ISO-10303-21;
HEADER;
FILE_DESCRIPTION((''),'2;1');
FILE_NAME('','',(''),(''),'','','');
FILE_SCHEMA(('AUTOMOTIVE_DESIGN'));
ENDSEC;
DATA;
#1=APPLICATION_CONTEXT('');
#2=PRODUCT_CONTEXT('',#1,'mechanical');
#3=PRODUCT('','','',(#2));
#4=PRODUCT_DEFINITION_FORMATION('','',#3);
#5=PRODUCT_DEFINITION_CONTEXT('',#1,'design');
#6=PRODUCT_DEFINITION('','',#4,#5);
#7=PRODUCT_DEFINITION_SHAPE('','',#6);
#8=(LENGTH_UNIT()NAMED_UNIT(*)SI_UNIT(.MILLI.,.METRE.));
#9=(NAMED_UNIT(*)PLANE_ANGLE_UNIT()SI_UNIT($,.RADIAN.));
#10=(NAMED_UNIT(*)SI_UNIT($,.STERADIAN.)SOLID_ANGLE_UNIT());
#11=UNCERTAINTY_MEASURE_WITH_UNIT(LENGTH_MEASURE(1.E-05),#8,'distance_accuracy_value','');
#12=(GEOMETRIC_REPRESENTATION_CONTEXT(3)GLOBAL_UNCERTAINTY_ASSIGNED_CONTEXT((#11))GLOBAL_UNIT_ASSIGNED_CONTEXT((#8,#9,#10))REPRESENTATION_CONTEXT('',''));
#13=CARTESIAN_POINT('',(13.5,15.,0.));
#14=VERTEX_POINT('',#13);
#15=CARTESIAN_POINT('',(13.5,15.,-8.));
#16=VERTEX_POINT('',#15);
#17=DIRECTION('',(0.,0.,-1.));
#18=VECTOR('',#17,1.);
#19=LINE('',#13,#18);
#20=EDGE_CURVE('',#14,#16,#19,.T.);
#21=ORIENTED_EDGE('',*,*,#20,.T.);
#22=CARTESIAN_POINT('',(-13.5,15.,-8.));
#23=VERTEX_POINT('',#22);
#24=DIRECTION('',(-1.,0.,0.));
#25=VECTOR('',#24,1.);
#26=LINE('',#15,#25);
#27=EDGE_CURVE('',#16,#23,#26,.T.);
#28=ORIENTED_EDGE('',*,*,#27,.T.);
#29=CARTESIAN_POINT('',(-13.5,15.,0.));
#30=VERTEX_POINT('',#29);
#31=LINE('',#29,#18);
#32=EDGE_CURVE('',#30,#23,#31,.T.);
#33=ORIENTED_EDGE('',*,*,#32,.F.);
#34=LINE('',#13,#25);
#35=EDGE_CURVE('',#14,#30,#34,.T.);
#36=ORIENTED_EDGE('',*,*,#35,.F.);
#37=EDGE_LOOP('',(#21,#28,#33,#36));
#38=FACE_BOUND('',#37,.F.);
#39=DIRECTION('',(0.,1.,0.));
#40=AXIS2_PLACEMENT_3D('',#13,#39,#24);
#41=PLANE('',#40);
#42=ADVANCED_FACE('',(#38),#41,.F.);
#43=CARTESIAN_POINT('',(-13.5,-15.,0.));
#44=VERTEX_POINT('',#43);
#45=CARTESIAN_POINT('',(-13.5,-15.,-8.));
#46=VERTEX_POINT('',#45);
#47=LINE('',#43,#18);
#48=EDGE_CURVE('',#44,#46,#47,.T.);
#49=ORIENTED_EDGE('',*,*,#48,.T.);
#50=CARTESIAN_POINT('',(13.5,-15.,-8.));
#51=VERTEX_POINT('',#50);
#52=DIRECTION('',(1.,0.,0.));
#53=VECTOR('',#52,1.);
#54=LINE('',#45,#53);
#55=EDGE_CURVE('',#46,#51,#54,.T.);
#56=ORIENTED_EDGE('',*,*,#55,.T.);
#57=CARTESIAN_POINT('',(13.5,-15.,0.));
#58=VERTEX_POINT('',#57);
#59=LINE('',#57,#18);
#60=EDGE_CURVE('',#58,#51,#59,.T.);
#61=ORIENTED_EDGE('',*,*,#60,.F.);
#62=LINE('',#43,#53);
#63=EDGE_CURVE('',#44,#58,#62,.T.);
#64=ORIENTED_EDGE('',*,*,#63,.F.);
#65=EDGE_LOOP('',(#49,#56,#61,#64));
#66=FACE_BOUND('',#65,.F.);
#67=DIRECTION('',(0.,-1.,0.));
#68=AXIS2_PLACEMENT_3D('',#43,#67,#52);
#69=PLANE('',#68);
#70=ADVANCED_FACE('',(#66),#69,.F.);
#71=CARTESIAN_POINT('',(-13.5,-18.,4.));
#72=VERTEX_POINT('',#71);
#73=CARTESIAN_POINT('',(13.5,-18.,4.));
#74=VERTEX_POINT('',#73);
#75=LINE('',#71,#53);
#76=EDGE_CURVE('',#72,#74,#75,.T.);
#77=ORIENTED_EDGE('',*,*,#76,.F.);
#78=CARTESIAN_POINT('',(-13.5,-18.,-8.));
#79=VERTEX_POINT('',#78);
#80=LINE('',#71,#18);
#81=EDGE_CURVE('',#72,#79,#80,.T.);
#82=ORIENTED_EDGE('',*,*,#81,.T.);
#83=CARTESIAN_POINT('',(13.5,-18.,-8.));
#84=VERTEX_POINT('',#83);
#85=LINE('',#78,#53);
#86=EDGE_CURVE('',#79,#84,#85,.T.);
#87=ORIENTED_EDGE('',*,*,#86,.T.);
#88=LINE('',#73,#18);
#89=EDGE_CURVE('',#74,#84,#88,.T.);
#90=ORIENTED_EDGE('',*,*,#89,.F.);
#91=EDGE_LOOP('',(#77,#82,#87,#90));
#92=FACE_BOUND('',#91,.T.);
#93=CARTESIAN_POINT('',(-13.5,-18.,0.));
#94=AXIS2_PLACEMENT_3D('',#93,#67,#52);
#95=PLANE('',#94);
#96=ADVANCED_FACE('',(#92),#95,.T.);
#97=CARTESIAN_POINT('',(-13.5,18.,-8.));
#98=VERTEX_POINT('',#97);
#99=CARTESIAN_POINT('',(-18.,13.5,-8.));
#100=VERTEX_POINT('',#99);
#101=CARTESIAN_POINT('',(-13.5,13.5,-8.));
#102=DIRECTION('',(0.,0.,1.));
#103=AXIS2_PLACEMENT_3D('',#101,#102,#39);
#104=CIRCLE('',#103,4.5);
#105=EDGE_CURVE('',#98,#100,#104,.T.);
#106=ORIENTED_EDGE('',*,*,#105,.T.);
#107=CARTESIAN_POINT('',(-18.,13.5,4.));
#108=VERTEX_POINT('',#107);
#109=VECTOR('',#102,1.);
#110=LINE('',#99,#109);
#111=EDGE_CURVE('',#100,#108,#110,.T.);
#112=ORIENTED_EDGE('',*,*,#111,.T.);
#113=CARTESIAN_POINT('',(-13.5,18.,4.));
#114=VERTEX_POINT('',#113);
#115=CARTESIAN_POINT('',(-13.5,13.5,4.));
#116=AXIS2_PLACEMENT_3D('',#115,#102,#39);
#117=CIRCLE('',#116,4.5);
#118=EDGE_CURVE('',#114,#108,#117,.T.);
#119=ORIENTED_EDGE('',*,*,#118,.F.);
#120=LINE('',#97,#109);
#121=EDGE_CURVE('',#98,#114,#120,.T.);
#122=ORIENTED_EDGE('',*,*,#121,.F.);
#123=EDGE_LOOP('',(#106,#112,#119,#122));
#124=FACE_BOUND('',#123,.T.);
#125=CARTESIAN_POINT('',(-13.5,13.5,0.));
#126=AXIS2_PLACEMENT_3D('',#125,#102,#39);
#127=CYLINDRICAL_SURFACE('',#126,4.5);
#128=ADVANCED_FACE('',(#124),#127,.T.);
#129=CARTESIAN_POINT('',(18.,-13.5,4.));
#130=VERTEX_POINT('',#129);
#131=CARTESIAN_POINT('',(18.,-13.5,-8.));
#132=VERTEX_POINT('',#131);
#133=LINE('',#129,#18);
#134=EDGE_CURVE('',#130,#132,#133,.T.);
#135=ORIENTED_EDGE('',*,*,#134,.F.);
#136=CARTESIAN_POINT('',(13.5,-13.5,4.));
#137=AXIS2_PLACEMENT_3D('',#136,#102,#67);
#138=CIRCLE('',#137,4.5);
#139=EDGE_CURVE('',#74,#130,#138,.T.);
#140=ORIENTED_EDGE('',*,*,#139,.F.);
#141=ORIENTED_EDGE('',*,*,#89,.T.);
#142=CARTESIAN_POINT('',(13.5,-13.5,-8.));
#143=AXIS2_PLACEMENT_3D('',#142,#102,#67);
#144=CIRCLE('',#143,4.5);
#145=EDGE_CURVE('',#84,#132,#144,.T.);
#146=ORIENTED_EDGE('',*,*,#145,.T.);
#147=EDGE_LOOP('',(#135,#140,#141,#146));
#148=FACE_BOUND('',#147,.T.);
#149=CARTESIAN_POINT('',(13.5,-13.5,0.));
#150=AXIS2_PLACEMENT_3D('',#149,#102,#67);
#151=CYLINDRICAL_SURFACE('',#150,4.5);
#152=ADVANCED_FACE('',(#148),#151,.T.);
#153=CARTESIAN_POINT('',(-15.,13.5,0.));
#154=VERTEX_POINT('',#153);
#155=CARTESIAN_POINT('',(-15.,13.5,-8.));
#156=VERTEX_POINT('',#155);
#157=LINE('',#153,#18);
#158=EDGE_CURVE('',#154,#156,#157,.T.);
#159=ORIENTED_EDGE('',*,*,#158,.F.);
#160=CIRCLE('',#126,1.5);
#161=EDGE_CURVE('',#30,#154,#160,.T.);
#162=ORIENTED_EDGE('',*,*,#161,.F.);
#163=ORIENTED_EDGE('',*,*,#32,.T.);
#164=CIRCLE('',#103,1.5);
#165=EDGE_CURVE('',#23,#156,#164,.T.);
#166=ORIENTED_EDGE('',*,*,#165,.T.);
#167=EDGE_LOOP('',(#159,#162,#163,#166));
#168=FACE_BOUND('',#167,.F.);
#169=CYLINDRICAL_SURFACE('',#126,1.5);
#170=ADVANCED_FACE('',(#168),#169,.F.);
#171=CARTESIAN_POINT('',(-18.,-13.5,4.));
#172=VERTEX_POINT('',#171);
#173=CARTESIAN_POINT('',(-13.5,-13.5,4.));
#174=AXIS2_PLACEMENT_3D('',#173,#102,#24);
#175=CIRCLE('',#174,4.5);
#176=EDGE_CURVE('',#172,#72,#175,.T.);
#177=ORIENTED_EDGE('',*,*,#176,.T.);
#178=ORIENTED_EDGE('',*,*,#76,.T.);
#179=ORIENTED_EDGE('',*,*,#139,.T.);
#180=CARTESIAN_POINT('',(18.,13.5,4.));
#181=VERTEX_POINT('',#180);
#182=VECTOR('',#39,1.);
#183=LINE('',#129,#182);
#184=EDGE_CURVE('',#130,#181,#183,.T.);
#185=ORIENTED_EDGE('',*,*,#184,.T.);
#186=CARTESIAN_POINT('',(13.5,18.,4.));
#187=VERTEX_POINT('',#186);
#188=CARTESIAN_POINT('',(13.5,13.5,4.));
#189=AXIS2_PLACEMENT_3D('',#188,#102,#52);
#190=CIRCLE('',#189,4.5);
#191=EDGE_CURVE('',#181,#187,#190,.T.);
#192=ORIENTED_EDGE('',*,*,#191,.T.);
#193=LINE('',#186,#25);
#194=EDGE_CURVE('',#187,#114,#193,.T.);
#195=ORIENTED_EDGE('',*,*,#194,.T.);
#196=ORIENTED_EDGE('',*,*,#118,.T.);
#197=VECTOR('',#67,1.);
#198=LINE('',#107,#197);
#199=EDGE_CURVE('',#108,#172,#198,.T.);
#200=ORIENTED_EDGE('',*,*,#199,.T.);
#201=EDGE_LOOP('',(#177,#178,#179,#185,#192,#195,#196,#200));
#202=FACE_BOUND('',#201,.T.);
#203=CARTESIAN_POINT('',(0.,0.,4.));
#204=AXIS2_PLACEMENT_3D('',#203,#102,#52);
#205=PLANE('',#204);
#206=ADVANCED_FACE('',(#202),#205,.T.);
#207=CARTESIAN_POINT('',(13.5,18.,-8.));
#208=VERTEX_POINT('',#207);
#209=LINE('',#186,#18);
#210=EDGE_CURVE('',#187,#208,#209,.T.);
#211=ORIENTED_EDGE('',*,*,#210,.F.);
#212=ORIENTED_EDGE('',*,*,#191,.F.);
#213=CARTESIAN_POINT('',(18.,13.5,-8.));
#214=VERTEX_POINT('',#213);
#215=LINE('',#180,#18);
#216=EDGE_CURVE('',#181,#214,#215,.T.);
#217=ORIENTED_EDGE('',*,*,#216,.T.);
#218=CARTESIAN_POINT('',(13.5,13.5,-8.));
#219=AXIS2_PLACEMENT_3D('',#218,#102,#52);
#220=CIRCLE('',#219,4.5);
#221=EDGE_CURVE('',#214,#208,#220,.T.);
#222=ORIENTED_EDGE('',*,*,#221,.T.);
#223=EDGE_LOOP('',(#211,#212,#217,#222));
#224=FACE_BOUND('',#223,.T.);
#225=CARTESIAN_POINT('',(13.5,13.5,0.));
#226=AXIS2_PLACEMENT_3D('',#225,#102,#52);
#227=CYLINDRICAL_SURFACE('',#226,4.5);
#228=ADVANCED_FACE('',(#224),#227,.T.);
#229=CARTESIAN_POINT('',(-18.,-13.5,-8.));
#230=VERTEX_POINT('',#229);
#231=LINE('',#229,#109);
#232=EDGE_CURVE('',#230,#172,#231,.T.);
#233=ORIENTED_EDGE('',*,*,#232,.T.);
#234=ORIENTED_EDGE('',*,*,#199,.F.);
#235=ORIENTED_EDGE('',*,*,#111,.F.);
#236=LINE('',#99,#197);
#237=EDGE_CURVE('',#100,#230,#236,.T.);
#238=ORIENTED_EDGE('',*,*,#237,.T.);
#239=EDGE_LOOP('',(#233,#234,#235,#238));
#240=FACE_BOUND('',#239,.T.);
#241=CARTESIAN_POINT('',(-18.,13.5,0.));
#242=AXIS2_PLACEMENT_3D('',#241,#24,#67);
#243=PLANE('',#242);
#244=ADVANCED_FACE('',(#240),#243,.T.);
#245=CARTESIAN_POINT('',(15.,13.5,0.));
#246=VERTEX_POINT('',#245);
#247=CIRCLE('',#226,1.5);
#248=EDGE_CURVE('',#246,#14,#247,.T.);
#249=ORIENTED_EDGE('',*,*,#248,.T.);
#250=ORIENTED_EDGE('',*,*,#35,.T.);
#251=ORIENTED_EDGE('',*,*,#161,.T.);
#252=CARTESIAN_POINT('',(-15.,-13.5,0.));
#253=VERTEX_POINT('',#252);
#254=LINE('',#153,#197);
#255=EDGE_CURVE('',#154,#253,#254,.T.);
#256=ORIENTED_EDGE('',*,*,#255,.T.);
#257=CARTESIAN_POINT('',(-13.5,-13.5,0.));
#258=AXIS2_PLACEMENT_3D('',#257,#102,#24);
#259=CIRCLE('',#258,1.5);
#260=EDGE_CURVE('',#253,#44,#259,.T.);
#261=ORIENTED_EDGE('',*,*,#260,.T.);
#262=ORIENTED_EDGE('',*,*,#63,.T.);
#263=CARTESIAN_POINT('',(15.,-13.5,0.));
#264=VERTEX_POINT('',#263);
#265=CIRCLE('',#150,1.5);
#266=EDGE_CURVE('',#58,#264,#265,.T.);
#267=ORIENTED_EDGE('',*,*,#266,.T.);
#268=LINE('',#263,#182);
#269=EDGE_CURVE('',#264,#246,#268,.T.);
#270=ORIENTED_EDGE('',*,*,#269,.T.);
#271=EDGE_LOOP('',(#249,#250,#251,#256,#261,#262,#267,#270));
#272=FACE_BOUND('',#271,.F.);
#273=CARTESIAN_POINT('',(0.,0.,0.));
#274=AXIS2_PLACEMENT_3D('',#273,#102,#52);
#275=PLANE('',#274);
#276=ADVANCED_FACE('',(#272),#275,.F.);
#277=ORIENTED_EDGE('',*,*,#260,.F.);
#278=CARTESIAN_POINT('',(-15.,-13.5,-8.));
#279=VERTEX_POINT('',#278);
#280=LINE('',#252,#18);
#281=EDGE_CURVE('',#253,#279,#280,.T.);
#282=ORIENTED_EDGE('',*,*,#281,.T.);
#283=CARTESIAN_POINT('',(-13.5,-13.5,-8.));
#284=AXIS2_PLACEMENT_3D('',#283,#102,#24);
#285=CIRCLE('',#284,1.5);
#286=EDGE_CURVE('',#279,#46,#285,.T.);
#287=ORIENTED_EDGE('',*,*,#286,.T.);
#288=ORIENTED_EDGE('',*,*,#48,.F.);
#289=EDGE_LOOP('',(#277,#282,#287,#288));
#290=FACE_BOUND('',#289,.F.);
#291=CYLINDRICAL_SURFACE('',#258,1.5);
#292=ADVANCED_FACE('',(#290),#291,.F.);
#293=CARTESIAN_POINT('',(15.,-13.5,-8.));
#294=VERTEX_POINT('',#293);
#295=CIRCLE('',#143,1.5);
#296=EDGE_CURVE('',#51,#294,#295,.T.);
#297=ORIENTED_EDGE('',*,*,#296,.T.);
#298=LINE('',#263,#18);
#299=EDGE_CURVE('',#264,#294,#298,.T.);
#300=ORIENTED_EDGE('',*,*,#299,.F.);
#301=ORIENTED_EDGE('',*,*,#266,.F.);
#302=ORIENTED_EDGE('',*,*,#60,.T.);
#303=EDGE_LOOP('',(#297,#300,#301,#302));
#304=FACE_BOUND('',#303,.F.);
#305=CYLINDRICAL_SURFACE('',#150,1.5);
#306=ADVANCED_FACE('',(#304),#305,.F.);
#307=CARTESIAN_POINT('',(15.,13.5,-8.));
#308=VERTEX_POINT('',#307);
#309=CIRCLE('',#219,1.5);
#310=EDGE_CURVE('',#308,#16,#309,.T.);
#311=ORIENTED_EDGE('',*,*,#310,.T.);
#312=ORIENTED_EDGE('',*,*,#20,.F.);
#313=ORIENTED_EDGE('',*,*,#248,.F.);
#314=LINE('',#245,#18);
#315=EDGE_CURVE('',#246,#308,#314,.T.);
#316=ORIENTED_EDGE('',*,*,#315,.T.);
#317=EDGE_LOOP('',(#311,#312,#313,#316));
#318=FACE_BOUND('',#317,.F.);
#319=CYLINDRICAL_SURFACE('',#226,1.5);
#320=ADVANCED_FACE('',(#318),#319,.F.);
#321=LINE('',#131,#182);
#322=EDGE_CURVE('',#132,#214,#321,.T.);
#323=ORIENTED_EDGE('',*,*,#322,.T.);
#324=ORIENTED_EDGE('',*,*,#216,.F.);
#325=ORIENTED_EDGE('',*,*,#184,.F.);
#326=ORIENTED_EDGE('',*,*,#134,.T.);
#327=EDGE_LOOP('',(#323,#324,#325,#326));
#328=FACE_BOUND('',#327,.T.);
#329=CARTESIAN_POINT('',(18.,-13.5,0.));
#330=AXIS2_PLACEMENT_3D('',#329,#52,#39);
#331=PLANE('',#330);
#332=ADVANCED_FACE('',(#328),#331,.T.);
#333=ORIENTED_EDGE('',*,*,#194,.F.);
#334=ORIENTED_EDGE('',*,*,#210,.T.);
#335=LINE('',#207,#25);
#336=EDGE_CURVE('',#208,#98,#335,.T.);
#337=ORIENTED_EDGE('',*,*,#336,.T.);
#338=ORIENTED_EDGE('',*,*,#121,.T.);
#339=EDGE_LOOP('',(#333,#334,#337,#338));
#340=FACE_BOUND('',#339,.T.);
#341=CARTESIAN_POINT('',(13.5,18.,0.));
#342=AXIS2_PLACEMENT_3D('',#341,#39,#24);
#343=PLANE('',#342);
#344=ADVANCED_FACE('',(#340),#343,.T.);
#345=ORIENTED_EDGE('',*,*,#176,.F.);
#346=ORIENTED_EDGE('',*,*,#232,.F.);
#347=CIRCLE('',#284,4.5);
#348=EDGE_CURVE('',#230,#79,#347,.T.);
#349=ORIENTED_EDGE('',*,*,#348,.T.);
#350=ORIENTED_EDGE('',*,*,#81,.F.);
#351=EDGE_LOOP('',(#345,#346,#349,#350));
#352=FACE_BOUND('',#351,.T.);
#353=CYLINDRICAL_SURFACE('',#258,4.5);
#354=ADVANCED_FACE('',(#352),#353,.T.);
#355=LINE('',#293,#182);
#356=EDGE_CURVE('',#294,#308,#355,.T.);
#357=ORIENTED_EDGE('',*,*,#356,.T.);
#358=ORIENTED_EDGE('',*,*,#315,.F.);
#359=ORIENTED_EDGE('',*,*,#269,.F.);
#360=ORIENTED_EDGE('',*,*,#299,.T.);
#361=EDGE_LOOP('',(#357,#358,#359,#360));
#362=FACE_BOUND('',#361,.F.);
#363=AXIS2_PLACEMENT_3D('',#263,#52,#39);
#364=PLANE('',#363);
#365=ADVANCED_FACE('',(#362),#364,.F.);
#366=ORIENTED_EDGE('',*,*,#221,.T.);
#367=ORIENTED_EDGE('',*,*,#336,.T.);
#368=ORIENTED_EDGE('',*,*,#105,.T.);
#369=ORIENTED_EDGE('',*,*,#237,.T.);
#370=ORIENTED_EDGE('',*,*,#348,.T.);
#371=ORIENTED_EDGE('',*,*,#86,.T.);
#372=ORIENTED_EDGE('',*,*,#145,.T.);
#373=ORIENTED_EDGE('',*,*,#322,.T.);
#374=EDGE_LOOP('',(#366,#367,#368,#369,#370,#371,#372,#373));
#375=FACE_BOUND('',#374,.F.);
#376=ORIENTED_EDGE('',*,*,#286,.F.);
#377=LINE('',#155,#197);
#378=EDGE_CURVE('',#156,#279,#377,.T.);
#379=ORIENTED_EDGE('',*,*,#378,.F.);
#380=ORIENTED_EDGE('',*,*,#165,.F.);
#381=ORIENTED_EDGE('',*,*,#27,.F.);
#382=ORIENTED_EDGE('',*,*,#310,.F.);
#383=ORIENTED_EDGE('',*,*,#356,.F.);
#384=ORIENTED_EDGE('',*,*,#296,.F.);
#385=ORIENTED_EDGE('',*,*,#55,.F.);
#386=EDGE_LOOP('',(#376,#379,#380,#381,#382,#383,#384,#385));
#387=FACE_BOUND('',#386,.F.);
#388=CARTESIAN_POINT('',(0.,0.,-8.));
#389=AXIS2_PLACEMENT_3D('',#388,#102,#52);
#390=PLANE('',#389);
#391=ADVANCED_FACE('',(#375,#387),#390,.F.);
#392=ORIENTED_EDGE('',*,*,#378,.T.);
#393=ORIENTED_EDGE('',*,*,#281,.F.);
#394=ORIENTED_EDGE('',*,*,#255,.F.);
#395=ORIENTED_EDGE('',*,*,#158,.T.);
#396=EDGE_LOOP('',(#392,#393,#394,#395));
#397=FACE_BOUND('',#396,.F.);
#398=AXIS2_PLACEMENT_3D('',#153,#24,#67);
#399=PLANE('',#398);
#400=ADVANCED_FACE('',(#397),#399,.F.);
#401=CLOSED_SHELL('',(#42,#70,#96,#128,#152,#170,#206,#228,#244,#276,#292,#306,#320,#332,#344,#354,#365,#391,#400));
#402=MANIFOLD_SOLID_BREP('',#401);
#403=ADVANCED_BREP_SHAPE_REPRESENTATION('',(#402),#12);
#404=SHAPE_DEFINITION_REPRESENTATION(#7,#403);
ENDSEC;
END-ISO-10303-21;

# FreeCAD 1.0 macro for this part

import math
import FreeCAD as App
import Part
import Sketcher
from FreeCAD import Vector
Q = App.Units.Quantity

doc = App.newDocument("Part")
body = doc.addObject("PartDesign::Body", "Body")

# Sketch on XY plane
sketch1 = doc.addObject("Sketcher::SketchObject", "Sketch")
body.addObject(sketch1)
sketch1.AttachmentSupport = (doc.XY_Plane, [""])
sketch1.MapMode = "FlatFace"
sketch1.addGeometry(Part.LineSegment(Vector(13.5, 18, 0), Vector(-13.5, 18, 0)), False)
sketch1.addGeometry(Part.ArcOfCircle(Part.Circle(Vector(-13.5, 13.5, 0), Vector(0, 0, 1), 4.5), math.radians(90), math.radians(180)), False)
sketch1.addGeometry(Part.LineSegment(Vector(-18, 13.5, 0), Vector(-18, -13.5, 0)), False)
sketch1.addGeometry(Part.ArcOfCircle(Part.Circle(Vector(-13.5, -13.5, 0), Vector(0, 0, 1), 4.5), math.radians(180), math.radians(270)), False)
sketch1.addGeometry(Part.LineSegment(Vector(-13.5, -18, 0), Vector(13.5, -18, 0)), False)
sketch1.addGeometry(Part.ArcOfCircle(Part.Circle(Vector(13.5, -13.5, 0), Vector(0, 0, 1), 4.5), math.radians(-90), math.radians(0)), False)
sketch1.addGeometry(Part.LineSegment(Vector(18, -13.5, 0), Vector(18, 13.5, 0)), False)
sketch1.addGeometry(Part.ArcOfCircle(Part.Circle(Vector(13.5, 13.5, 0), Vector(0, 0, 1), 4.5), math.radians(0), math.radians(90)), False)
sketch1.addConstraint(Sketcher.Constraint("Tangent", 0, 2, 1, 1))
sketch1.addConstraint(Sketcher.Constraint("Tangent", 1, 2, 2, 1))
sketch1.addConstraint(Sketcher.Constraint("Tangent", 2, 2, 3, 1))
sketch1.addConstraint(Sketcher.Constraint("Tangent", 3, 2, 4, 1))
sketch1.addConstraint(Sketcher.Constraint("Tangent", 4, 2, 5, 1))
sketch1.addConstraint(Sketcher.Constraint("Tangent", 5, 2, 6, 1))
sketch1.addConstraint(Sketcher.Constraint("Tangent", 6, 2, 7, 1))
sketch1.addConstraint(Sketcher.Constraint("Tangent", 7, 2, 0, 1))
sketch1.addConstraint(Sketcher.Constraint("Horizontal", 0))
sketch1.addConstraint(Sketcher.Constraint("Vertical", 2))
sketch1.addConstraint(Sketcher.Constraint("Horizontal", 4))
sketch1.addConstraint(Sketcher.Constraint("Vertical", 6))
sketch1.addConstraint(Sketcher.Constraint("Equal", 1, 3))
sketch1.addConstraint(Sketcher.Constraint("Equal", 3, 5))
sketch1.addConstraint(Sketcher.Constraint("Equal", 5, 7))
sketch1.addConstraint(Sketcher.Constraint("Symmetric", 1, 3, 5, 3, -1, 1))
sketch1.addConstraint(Sketcher.Constraint("Equal", 4, 2))
sketch1.addConstraint(Sketcher.Constraint("Radius", 1, Q("4.5 mm")))
sketch1.addConstraint(Sketcher.Constraint("DistanceX", 0, 2, 0, 1, Q("27 mm")))
pad1 = doc.addObject("PartDesign::Pad", "Pad")
body.addObject(pad1)
pad1.Profile = sketch1
pad1.Length = 4

# Sketch on XY plane
sketch2 = doc.addObject("Sketcher::SketchObject", "Sketch001")
body.addObject(sketch2)
sketch2.AttachmentSupport = (doc.XY_Plane, [""])
sketch2.MapMode = "FlatFace"
sketch2.addGeometry(Part.LineSegment(Vector(13.5, 18, 0), Vector(-13.5, 18, 0)), False)
sketch2.addGeometry(Part.ArcOfCircle(Part.Circle(Vector(-13.5, 13.5, 0), Vector(0, 0, 1), 4.5), math.radians(90), math.radians(180)), False)
sketch2.addGeometry(Part.LineSegment(Vector(-18, 13.5, 0), Vector(-18, -13.5, 0)), False)
sketch2.addGeometry(Part.ArcOfCircle(Part.Circle(Vector(-13.5, -13.5, 0), Vector(0, 0, 1), 4.5), math.radians(180), math.radians(270)), False)
sketch2.addGeometry(Part.LineSegment(Vector(-13.5, -18, 0), Vector(13.5, -18, 0)), False)
sketch2.addGeometry(Part.ArcOfCircle(Part.Circle(Vector(13.5, -13.5, 0), Vector(0, 0, 1), 4.5), math.radians(-90), math.radians(0)), False)
sketch2.addGeometry(Part.LineSegment(Vector(18, -13.5, 0), Vector(18, 13.5, 0)), False)
sketch2.addGeometry(Part.ArcOfCircle(Part.Circle(Vector(13.5, 13.5, 0), Vector(0, 0, 1), 4.5), math.radians(0), math.radians(90)), False)
sketch2.addGeometry(Part.ArcOfCircle(Part.Circle(Vector(-13.5, 13.5, 0), Vector(0, 0, 1), 1.5), math.radians(90), math.radians(180)), False)
sketch2.addGeometry(Part.LineSegment(Vector(-13.5, 15, 0), Vector(13.5, 15, 0)), False)
sketch2.addGeometry(Part.ArcOfCircle(Part.Circle(Vector(13.5, 13.5, 0), Vector(0, 0, 1), 1.5), math.radians(0), math.radians(90)), False)
sketch2.addGeometry(Part.LineSegment(Vector(15, 13.5, 0), Vector(15, -13.5, 0)), False)
sketch2.addGeometry(Part.ArcOfCircle(Part.Circle(Vector(13.5, -13.5, 0), Vector(0, 0, 1), 1.5), math.radians(-90), math.radians(0)), False)
sketch2.addGeometry(Part.LineSegment(Vector(13.5, -15, 0), Vector(-13.5, -15, 0)), False)
sketch2.addGeometry(Part.ArcOfCircle(Part.Circle(Vector(-13.5, -13.5, 0), Vector(0, 0, 1), 1.5), math.radians(180), math.radians(270)), False)
sketch2.addGeometry(Part.LineSegment(Vector(-15, -13.5, 0), Vector(-15, 13.5, 0)), False)
sketch2.addConstraint(Sketcher.Constraint("Tangent", 0, 2, 1, 1))
sketch2.addConstraint(Sketcher.Constraint("Tangent", 1, 2, 2, 1))
sketch2.addConstraint(Sketcher.Constraint("Tangent", 2, 2, 3, 1))
sketch2.addConstraint(Sketcher.Constraint("Tangent", 3, 2, 4, 1))
sketch2.addConstraint(Sketcher.Constraint("Tangent", 4, 2, 5, 1))
sketch2.addConstraint(Sketcher.Constraint("Tangent", 5, 2, 6, 1))
sketch2.addConstraint(Sketcher.Constraint("Tangent", 6, 2, 7, 1))
sketch2.addConstraint(Sketcher.Constraint("Tangent", 7, 2, 0, 1))
sketch2.addConstraint(Sketcher.Constraint("Tangent", 8, 1, 9, 1))
sketch2.addConstraint(Sketcher.Constraint("Tangent", 9, 2, 10, 2))
sketch2.addConstraint(Sketcher.Constraint("Tangent", 10, 1, 11, 1))
sketch2.addConstraint(Sketcher.Constraint("Tangent", 11, 2, 12, 2))
sketch2.addConstraint(Sketcher.Constraint("Tangent", 12, 1, 13, 1))
sketch2.addConstraint(Sketcher.Constraint("Tangent", 13, 2, 14, 2))
sketch2.addConstraint(Sketcher.Constraint("Tangent", 14, 1, 15, 1))
sketch2.addConstraint(Sketcher.Constraint("Tangent", 15, 2, 8, 2))
sketch2.addConstraint(Sketcher.Constraint("Horizontal", 0))
sketch2.addConstraint(Sketcher.Constraint("Vertical", 2))
sketch2.addConstraint(Sketcher.Constraint("Horizontal", 4))
sketch2.addConstraint(Sketcher.Constraint("Vertical", 6))
sketch2.addConstraint(Sketcher.Constraint("Horizontal", 9))
sketch2.addConstraint(Sketcher.Constraint("Vertical", 11))
sketch2.addConstraint(Sketcher.Constraint("Horizontal", 13))
sketch2.addConstraint(Sketcher.Constraint("Vertical", 15))
sketch2.addConstraint(Sketcher.Constraint("Coincident", 8, 3, 1, 3))
sketch2.addConstraint(Sketcher.Constraint("Coincident", 10, 3, 7, 3))
sketch2.addConstraint(Sketcher.Constraint("Coincident", 12, 3, 5, 3))
sketch2.addConstraint(Sketcher.Constraint("Equal", 1, 3))
sketch2.addConstraint(Sketcher.Constraint("Equal", 3, 5))
sketch2.addConstraint(Sketcher.Constraint("Equal", 5, 7))
sketch2.addConstraint(Sketcher.Constraint("Equal", 12, 14))
sketch2.addConstraint(Sketcher.Constraint("Symmetric", 1, 3, 5, 3, -1, 1))
sketch2.addConstraint(Sketcher.Constraint("Equal", 13, 2))
sketch2.addConstraint(Sketcher.Constraint("Radius", 8, Q("1.5 mm")))
sketch2.addConstraint(Sketcher.Constraint("DistanceY", 8, 1, 0, 2, Q("3 mm")))
sketch2.addConstraint(Sketcher.Constraint("DistanceX", 0, 2, 0, 1, Q("27 mm")))
pad2 = doc.addObject("PartDesign::Pad", "Pad001")
body.addObject(pad2)
pad2.Profile = sketch2
pad2.Length = 8
pad2.Reversed = True

doc.recompute()
